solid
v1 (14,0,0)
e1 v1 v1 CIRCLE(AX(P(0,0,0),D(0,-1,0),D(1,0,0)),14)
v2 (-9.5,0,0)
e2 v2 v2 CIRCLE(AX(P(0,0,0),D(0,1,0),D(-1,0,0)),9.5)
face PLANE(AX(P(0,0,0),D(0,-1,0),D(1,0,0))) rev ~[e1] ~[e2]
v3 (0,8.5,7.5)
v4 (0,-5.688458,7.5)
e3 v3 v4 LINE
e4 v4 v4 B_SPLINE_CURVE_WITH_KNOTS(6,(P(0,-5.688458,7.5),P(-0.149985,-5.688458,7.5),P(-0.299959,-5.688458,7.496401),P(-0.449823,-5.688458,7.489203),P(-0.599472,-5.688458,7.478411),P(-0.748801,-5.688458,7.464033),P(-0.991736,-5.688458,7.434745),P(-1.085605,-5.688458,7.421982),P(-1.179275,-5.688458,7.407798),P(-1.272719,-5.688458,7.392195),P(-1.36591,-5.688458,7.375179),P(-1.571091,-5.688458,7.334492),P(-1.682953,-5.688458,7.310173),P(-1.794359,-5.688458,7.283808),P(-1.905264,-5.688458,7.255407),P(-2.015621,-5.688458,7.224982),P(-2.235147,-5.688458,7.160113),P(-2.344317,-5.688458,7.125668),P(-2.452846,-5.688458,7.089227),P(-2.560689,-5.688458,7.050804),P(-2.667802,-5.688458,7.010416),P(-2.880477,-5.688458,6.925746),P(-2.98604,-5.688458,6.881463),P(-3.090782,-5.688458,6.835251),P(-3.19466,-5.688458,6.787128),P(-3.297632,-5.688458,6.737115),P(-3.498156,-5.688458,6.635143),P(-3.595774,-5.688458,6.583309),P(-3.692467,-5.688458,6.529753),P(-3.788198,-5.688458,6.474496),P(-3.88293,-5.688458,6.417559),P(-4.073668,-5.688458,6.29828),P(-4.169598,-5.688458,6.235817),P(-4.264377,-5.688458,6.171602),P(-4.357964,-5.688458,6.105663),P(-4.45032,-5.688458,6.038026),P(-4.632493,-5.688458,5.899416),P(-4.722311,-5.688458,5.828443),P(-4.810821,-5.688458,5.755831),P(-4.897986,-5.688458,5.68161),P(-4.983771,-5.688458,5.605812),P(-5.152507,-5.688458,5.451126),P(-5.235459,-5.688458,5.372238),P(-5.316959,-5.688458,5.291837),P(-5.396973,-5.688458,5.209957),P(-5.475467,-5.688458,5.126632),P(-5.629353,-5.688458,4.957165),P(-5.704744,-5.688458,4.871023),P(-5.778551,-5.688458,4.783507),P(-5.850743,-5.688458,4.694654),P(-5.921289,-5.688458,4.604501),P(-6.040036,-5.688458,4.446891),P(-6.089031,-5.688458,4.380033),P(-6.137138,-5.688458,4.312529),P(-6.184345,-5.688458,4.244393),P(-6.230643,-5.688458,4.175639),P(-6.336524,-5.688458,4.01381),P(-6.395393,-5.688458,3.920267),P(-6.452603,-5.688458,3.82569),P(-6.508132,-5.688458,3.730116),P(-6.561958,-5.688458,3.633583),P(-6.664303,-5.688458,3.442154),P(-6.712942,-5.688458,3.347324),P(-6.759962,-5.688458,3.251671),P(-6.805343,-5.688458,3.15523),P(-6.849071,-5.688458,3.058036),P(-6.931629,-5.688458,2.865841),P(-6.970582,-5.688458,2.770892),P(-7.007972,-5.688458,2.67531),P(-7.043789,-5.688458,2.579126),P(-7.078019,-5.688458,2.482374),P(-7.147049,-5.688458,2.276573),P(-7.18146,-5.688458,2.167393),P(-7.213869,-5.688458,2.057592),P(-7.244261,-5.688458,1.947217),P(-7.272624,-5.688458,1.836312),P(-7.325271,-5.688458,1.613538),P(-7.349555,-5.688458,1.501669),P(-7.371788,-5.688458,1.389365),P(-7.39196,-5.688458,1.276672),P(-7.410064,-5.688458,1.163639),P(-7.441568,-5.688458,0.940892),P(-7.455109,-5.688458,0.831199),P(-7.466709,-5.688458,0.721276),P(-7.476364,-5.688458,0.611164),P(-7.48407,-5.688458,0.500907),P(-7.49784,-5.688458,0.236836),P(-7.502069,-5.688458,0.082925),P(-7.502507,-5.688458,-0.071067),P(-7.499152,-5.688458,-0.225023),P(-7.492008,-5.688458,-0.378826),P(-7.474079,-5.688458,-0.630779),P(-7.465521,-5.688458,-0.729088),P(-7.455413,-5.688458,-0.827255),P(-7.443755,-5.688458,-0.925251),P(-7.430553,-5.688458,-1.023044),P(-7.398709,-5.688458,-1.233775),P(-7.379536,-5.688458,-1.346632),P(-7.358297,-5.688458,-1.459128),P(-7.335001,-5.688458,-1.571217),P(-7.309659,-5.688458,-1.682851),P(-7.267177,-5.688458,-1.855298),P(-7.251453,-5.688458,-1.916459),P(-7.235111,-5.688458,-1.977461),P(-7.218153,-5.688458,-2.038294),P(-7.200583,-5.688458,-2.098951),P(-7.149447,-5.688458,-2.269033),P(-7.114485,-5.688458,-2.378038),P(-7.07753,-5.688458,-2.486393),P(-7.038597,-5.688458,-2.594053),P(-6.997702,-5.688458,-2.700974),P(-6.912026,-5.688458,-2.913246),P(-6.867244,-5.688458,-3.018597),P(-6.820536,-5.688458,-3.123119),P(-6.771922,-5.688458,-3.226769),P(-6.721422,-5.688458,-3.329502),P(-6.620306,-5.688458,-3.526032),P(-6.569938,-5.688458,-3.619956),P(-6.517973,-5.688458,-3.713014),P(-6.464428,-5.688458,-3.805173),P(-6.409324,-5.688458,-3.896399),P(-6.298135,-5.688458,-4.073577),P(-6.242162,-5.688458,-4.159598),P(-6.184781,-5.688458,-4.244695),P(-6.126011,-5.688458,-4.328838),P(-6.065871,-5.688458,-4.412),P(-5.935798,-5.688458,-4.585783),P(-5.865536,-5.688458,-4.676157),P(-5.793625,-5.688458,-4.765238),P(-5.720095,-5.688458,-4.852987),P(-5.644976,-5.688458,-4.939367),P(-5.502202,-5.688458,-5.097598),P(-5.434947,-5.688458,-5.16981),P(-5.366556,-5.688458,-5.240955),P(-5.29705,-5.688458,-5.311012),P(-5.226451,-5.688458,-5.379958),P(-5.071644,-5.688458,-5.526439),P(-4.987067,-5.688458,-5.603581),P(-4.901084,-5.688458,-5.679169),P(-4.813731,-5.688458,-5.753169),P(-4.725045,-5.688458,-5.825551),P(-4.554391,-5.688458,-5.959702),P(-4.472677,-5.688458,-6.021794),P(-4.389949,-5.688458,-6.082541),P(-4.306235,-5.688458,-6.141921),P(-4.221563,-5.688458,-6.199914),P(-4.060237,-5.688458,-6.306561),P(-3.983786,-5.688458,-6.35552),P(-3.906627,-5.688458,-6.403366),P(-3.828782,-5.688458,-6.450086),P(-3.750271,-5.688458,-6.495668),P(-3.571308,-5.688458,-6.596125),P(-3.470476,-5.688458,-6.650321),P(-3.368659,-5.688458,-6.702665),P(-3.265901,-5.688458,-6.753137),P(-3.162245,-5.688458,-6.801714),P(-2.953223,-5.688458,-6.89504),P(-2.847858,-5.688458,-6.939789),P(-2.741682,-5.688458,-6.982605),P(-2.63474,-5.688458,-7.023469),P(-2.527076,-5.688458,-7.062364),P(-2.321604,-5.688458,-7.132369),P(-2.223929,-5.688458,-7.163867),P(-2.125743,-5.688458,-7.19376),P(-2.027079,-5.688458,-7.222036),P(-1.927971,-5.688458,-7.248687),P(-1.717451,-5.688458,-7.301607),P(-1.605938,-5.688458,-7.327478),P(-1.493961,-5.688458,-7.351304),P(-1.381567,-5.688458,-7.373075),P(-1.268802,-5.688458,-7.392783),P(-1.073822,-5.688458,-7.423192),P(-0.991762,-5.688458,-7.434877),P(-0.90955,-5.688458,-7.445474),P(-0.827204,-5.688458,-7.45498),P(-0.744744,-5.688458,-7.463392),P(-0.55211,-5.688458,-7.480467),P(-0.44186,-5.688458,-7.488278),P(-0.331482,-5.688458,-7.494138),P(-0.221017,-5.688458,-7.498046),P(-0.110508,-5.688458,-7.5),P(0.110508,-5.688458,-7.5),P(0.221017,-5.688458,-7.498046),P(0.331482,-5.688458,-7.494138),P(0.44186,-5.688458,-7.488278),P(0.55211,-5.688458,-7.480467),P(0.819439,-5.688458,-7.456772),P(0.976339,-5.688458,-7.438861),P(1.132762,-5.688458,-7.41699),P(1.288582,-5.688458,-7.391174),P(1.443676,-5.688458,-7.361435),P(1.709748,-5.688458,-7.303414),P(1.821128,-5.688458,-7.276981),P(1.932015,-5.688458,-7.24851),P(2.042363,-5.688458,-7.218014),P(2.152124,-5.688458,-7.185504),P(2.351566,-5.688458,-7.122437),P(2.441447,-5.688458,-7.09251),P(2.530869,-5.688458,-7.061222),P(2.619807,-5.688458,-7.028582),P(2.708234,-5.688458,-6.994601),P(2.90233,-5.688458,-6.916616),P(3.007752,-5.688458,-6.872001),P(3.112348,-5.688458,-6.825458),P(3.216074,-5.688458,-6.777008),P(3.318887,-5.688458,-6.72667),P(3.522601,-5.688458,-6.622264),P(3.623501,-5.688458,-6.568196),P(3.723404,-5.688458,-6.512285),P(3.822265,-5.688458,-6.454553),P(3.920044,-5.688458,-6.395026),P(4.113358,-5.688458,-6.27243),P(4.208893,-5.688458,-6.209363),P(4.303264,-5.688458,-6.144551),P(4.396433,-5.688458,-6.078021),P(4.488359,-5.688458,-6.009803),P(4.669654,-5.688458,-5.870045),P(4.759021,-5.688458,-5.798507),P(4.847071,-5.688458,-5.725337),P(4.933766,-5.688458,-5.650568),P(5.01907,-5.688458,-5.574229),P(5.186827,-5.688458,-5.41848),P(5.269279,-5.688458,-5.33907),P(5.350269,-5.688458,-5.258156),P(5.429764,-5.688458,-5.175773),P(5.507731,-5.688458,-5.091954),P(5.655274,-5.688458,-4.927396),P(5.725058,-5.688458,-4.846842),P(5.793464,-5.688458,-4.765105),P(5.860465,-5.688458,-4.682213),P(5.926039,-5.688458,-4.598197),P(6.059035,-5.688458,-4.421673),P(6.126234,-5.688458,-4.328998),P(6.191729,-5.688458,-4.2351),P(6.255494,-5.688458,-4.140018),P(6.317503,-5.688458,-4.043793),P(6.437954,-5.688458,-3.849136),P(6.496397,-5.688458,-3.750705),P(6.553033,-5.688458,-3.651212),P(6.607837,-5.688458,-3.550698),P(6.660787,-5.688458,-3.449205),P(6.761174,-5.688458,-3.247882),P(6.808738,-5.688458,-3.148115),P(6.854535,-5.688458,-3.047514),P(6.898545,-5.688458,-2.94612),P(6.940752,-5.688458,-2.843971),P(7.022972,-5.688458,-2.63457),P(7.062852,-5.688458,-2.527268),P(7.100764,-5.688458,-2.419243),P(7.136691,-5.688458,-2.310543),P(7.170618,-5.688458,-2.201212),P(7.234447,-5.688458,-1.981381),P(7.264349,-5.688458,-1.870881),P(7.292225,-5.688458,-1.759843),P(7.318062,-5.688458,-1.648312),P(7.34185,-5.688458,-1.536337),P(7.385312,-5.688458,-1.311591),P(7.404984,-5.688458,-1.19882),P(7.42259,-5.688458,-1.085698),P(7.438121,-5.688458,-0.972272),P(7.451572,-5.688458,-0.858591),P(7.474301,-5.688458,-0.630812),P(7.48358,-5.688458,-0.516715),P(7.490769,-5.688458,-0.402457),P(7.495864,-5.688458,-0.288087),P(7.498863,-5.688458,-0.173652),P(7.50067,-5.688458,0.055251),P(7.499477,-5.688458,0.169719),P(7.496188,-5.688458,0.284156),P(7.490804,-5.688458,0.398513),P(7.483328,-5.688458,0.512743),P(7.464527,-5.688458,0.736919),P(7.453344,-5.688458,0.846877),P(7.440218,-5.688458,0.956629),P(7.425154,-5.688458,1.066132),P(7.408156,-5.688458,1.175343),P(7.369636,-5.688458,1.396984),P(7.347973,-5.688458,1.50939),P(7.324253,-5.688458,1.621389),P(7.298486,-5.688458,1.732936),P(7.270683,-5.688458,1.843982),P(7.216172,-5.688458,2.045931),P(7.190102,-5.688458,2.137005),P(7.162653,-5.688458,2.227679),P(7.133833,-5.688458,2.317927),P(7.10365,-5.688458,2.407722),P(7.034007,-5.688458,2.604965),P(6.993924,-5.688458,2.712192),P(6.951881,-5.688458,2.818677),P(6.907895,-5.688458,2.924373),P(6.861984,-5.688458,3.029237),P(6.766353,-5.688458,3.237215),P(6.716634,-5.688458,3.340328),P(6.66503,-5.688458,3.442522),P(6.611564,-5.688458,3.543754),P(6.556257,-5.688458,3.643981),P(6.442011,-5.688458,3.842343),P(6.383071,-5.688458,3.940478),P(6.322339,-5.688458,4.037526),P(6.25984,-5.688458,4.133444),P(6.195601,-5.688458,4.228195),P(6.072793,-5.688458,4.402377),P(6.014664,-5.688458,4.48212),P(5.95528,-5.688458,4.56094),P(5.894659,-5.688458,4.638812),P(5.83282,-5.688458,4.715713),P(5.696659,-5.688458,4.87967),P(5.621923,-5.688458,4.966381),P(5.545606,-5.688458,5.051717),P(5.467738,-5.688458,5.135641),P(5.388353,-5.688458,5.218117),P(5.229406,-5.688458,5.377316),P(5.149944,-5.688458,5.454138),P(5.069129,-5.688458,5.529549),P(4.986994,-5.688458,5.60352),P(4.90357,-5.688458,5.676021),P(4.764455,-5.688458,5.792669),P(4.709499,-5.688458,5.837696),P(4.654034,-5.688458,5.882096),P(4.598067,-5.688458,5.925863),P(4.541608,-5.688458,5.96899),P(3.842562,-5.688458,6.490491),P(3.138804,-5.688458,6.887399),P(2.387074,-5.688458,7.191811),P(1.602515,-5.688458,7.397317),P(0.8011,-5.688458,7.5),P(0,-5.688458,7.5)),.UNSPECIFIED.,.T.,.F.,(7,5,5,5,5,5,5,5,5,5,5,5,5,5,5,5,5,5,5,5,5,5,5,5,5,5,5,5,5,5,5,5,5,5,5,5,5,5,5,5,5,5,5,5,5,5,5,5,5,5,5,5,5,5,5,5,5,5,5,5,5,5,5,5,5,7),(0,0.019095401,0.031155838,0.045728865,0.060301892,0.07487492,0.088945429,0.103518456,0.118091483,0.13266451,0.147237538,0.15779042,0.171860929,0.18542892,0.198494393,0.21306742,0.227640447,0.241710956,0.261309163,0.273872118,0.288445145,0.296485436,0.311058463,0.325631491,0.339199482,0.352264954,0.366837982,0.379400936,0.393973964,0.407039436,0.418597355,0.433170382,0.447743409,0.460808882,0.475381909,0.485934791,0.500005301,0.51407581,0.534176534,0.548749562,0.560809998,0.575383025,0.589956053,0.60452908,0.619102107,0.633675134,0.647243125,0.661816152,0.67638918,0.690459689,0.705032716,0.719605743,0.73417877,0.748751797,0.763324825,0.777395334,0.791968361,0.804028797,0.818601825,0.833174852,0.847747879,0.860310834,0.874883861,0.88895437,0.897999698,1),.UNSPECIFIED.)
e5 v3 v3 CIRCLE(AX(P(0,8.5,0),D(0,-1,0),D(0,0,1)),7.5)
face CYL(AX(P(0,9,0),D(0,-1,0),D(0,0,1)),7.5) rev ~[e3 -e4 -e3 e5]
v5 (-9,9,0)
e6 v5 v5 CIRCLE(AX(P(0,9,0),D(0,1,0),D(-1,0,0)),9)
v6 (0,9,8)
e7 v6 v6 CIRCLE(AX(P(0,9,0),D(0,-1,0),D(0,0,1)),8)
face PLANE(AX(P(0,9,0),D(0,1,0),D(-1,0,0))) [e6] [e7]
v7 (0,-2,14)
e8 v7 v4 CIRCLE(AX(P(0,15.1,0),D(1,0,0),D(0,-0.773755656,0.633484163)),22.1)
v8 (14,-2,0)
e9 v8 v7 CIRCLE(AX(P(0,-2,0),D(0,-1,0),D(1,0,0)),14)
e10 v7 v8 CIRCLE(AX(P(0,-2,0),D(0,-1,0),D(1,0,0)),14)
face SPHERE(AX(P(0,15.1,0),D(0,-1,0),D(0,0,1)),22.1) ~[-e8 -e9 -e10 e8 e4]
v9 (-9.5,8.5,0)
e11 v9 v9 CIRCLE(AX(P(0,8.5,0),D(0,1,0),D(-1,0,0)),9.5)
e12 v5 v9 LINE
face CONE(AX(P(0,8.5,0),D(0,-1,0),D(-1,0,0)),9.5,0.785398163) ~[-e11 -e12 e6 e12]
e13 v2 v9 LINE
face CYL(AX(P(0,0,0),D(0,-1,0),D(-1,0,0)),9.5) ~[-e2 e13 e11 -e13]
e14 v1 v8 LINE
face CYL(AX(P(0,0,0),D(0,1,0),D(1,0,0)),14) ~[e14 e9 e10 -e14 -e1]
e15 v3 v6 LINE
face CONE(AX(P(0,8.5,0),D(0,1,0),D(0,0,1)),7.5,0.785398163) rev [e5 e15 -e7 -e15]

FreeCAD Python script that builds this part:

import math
import FreeCAD as App
import Part
import Sketcher

V = App.Vector


def edges_at(feature, points):
    """Names of the edges that pass closest to the given points."""
    edges = feature.Shape.Edges
    near = lambda p: min(range(len(edges)), key=lambda i: edges[i].distToShape(Part.Vertex(*p))[0])
    return sorted({f"Edge{near(p) + 1}" for p in points})

doc = App.newDocument("Part")
body = doc.addObject("PartDesign::Body", "Body")

# Sketch on XZ plane
sketch1 = body.newObject("Sketcher::SketchObject", "Sketch")
sketch1.AttachmentSupport = (doc.getObject("XZ_Plane"), [""])
sketch1.MapMode = "FlatFace"
sketch1.addGeometry(Part.Circle(V(0, 0, 0), V(0, 0, 1), 10), False)
sketch1.addConstraint([
    Sketcher.Constraint("Coincident", 0, 3, -1, 1),
    Sketcher.Constraint("Diameter", 0, 19.0),
])
pad1 = body.newObject("PartDesign::Pad", "Pad")
pad1.Profile = sketch1
pad1.Length = 9
pad1.Reversed = True

# Sketch on XZ plane
sketch2 = body.newObject("Sketcher::SketchObject", "Sketch001")
sketch2.AttachmentSupport = (doc.getObject("XZ_Plane"), [""])
sketch2.MapMode = "FlatFace"
sketch2.addGeometry(Part.Circle(V(0, 0, 0), V(0, 0, 1), 14), False)
sketch2.addConstraint([
    Sketcher.Constraint("Coincident", 0, 3, -1, 1),
    Sketcher.Constraint("Diameter", 0, 28.0),
])
pad2 = body.newObject("PartDesign::Pad", "Pad001")
pad2.Profile = sketch2
pad2.Length = 2

# Sketch on YZ plane
sketch3 = body.newObject("Sketcher::SketchObject", "Sketch002")
sketch3.AttachmentSupport = (doc.getObject("YZ_Plane"), [""])
sketch3.MapMode = "FlatFace"
sketch3.addGeometry([
    Part.LineSegment(V(-7, 0, 0), V(-2, 0, 0)),
    Part.LineSegment(V(-2, 0, 0), V(-2, 14, 0)),
    Part.ArcOfCircle(Part.Circle(V(15, 0, 0), V(0, 0, 1), 22), math.radians(141), math.radians(180)),
], False)
sketch3.addConstraint([
    Sketcher.Constraint("Coincident", 0, 2, 1, 1),
    Sketcher.Constraint("Coincident", 1, 2, 2, 1),
    Sketcher.Constraint("Coincident", 2, 2, 0, 1),
    Sketcher.Constraint("Horizontal", 0),
    Sketcher.Constraint("Vertical", 1),
    Sketcher.Constraint("PointOnObject", 2, 3, -1),
    Sketcher.Constraint("PointOnObject", 0, 2, -1),
    Sketcher.Constraint("DistanceX", 0, 1, 0, 2, 5.0),
    Sketcher.Constraint("Radius", 2, 22.1),
    Sketcher.Constraint("DistanceX", 0, 2, -1, 1, 2.0),
])
revolution = body.newObject("PartDesign::Revolution", "Revolution")
revolution.Profile = sketch3
revolution.ReferenceAxis = (sketch3, ["H_Axis"])
revolution.Angle = 360

# Sketch on XZ plane
sketch4 = body.newObject("Sketcher::SketchObject", "Sketch003")
sketch4.AttachmentSupport = (doc.getObject("XZ_Plane"), [""])
sketch4.MapMode = "FlatFace"
sketch4.AttachmentOffset = App.Placement(V(0, 0, -9), App.Rotation())
sketch4.addGeometry(Part.Circle(V(0, 0, 0), V(0, 0, 1), 8), False)
sketch4.addConstraint([
    Sketcher.Constraint("Coincident", 0, 3, -1, 1),
    Sketcher.Constraint("Diameter", 0, 15.0),
])
doc.recompute()
hole = body.newObject("PartDesign::Hole", "Hole")
hole.Profile = sketch4
hole.ThreadType = "None"
hole.Diameter = 15
hole.DepthType = "ThroughAll"
hole.Reversed = True
doc.recompute()

chamfer = body.newObject("PartDesign::Chamfer", "Chamfer")
chamfer.Base = (hole, edges_at(hole, [(9.5, 9, 0), (0, 9, -7.5)]))
chamfer.Size = 0.5

doc.recompute()
